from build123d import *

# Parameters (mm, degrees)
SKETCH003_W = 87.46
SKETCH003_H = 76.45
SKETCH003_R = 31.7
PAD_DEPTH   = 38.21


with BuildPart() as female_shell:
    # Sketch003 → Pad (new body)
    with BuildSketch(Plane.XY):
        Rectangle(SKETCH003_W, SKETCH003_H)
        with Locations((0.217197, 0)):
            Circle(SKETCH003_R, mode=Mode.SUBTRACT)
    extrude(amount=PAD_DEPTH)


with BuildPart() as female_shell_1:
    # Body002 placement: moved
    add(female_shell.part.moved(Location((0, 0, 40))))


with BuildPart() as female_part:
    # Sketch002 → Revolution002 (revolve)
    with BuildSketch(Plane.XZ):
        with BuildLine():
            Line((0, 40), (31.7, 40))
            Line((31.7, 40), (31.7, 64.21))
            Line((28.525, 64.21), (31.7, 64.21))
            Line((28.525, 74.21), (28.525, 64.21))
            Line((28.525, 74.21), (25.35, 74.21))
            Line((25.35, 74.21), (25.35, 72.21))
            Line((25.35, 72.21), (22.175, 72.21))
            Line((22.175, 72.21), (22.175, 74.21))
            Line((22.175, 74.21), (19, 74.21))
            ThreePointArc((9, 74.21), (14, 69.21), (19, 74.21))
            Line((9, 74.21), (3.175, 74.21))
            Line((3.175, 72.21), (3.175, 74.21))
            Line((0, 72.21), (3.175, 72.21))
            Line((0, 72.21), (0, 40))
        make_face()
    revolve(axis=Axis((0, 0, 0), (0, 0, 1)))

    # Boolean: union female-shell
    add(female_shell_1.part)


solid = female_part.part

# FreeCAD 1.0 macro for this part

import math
import FreeCAD as App
import Part
import Sketcher

V = App.Vector

doc = App.newDocument("Part")
body = doc.addObject("PartDesign::Body", "Body")

sketch1 = doc.addObject("Sketcher::SketchObject", "Sketch")
body.addObject(sketch1)
sketch1.AttachmentSupport = (doc.XY_Plane, [""])
sketch1.MapMode = "FlatFace"
sketch1.addGeometry([
    Part.LineSegment(V(-43.73, 38.225, 0), V(-43.73, -38.225, 0)),
    Part.LineSegment(V(-43.73, -38.225, 0), V(43.73, -38.225, 0)),
    Part.LineSegment(V(43.73, -38.225, 0), V(43.73, 38.225, 0)),
    Part.LineSegment(V(43.73, 38.225, 0), V(-43.73, 38.225, 0)),
    Part.Circle(V(0.217197, 0, 0), V(0, 0, 1), 31.7),
], False)
sketch1.addConstraint([
    Sketcher.Constraint("Coincident", 0, 2, 1, 1),
    Sketcher.Constraint("Coincident", 1, 2, 2, 1),
    Sketcher.Constraint("Coincident", 2, 2, 3, 1),
    Sketcher.Constraint("Coincident", 3, 2, 0, 1),
    Sketcher.Constraint("Vertical", 0),
    Sketcher.Constraint("Horizontal", 1),
    Sketcher.Constraint("Vertical", 2),
    Sketcher.Constraint("Horizontal", 3),
    Sketcher.Constraint("Symmetric", 0, 2, 2, 2, -1, 1),
    Sketcher.Constraint("PointOnObject", 4, 3, -1),
    Sketcher.Constraint("Diameter", 4, 63.4),
    Sketcher.Constraint("DistanceX", 1, 1, 1, 2, 87.46),
    Sketcher.Constraint("DistanceY", 0, 2, 0, 1, 76.45),
    Sketcher.Constraint("DistanceX", -1, 1, 4, 3, 0.217197),
])
pad1 = doc.addObject("PartDesign::Pad", "Pad")
body.addObject(pad1)
pad1.Profile = sketch1
pad1.Length = 38.21
body2 = doc.addObject("PartDesign::Body", "Body001")
doc.recompute()

body.Placement = App.Placement(V(0, 0, 40), App.Rotation(V(0, 0, 1), 0))
boolean = doc.addObject("PartDesign::Boolean", "Boolean")
body2.addObject(boolean)
boolean.Type = "Fuse"
boolean.addObjects([body])
body3 = doc.addObject("PartDesign::Body", "Body002")

sketch2 = doc.addObject("Sketcher::SketchObject", "Sketch001")
body3.addObject(sketch2)
sketch2.AttachmentSupport = (doc.getObject("XZ_Plane002"), [""])
sketch2.MapMode = "FlatFace"
sketch2.addGeometry([
    Part.LineSegment(V(0, 40, 0), V(31.7, 40, 0)),
    Part.LineSegment(V(31.7, 40, 0), V(31.7, 64.21, 0)),
    Part.LineSegment(V(31.7, 64.21, 0), V(28.525, 64.21, 0)),
    Part.LineSegment(V(28.525, 64.21, 0), V(28.525, 74.21, 0)),
    Part.LineSegment(V(28.525, 74.21, 0), V(25.35, 74.21, 0)),
    Part.LineSegment(V(25.35, 74.21, 0), V(25.35, 72.21, 0)),
    Part.LineSegment(V(25.35, 72.21, 0), V(22.175, 72.21, 0)),
    Part.LineSegment(V(22.175, 72.21, 0), V(22.175, 74.21, 0)),
    Part.LineSegment(V(22.175, 74.21, 0), V(19, 74.21, 0)),
    Part.ArcOfCircle(Part.Circle(V(14, 74.21, 0), V(0, 0, 1), 5), math.radians(180), math.radians(360)),
    Part.LineSegment(V(9, 74.21, 0), V(3.175, 74.21, 0)),
    Part.LineSegment(V(3.175, 74.21, 0), V(3.175, 72.21, 0)),
    Part.LineSegment(V(3.175, 72.21, 0), V(0, 72.21, 0)),
    Part.LineSegment(V(0, 72.21, 0), V(0, 40, 0)),
], False)
sketch2.addConstraint([
    Sketcher.Constraint("Coincident", 0, 2, 1, 1),
    Sketcher.Constraint("Coincident", 1, 2, 2, 1),
    Sketcher.Constraint("Coincident", 2, 2, 3, 1),
    Sketcher.Constraint("Coincident", 3, 2, 4, 1),
    Sketcher.Constraint("Coincident", 4, 2, 5, 1),
    Sketcher.Constraint("Coincident", 5, 2, 6, 1),
    Sketcher.Constraint("Coincident", 6, 2, 7, 1),
    Sketcher.Constraint("Coincident", 7, 2, 8, 1),
    Sketcher.Constraint("Coincident", 8, 2, 9, 2),
    Sketcher.Constraint("Coincident", 9, 1, 10, 1),
    Sketcher.Constraint("Coincident", 10, 2, 11, 1),
    Sketcher.Constraint("Coincident", 11, 2, 12, 1),
    Sketcher.Constraint("Coincident", 12, 2, 13, 1),
    Sketcher.Constraint("Coincident", 13, 2, 0, 1),
    Sketcher.Constraint("Horizontal", 0),
    Sketcher.Constraint("Vertical", 1),
    Sketcher.Constraint("Horizontal", 2),
    Sketcher.Constraint("Vertical", 3),
    Sketcher.Constraint("Horizontal", 4),
    Sketcher.Constraint("Vertical", 5),
    Sketcher.Constraint("Horizontal", 6),
    Sketcher.Constraint("Vertical", 7),
    Sketcher.Constraint("Horizontal", 8),
    Sketcher.Constraint("Horizontal", 10),
    Sketcher.Constraint("Vertical", 11),
    Sketcher.Constraint("Horizontal", 12),
    Sketcher.Constraint("Vertical", 13),
    Sketcher.Constraint("PointOnObject", 12, 2, -2),
    Sketcher.Constraint("Horizontal", 9, 3, 3, 2),
    Sketcher.Constraint("Horizontal", 4, 2, 7, 2),
    Sketcher.Constraint("Horizontal", 8, 2, 9, 1),
    Sketcher.Constraint("Horizontal", 6, 2, 11, 2),
    Sketcher.Constraint("Equal", 2, 4),
    Sketcher.Constraint("Equal", 4, 6),
    Sketcher.Constraint("Equal", 6, 8),
    Sketcher.Constraint("Equal", 8, 12),
    Sketcher.Constraint("Radius", 9, 5.0),
    Sketcher.Constraint("DistanceY", 3, 1, 3, 2, 10.0),
    Sketcher.Constraint("DistanceY", 5, 2, 5, 1, 2.0),
    Sketcher.Constraint("DistanceX", 0, 1, 0, 2, 31.7),
    Sketcher.Constraint("DistanceX", -1, 1, 9, 3, 14.0),
    Sketcher.Constraint("DistanceY", -1, 1, 0, 2, 40.0),
    Sketcher.Constraint("DistanceY", 1, 1, 1, 2, 24.21),
])
revolution = doc.addObject("PartDesign::Revolution", "Revolution")
body3.addObject(revolution)
revolution.Profile = sketch2
revolution.ReferenceAxis = (sketch2, ["V_Axis"])
revolution.Angle = 360
doc.recompute()

boolean2 = doc.addObject("PartDesign::Boolean", "Boolean001")
body3.addObject(boolean2)
boolean2.Type = "Fuse"
boolean2.addObjects([body2])

doc.recompute()
